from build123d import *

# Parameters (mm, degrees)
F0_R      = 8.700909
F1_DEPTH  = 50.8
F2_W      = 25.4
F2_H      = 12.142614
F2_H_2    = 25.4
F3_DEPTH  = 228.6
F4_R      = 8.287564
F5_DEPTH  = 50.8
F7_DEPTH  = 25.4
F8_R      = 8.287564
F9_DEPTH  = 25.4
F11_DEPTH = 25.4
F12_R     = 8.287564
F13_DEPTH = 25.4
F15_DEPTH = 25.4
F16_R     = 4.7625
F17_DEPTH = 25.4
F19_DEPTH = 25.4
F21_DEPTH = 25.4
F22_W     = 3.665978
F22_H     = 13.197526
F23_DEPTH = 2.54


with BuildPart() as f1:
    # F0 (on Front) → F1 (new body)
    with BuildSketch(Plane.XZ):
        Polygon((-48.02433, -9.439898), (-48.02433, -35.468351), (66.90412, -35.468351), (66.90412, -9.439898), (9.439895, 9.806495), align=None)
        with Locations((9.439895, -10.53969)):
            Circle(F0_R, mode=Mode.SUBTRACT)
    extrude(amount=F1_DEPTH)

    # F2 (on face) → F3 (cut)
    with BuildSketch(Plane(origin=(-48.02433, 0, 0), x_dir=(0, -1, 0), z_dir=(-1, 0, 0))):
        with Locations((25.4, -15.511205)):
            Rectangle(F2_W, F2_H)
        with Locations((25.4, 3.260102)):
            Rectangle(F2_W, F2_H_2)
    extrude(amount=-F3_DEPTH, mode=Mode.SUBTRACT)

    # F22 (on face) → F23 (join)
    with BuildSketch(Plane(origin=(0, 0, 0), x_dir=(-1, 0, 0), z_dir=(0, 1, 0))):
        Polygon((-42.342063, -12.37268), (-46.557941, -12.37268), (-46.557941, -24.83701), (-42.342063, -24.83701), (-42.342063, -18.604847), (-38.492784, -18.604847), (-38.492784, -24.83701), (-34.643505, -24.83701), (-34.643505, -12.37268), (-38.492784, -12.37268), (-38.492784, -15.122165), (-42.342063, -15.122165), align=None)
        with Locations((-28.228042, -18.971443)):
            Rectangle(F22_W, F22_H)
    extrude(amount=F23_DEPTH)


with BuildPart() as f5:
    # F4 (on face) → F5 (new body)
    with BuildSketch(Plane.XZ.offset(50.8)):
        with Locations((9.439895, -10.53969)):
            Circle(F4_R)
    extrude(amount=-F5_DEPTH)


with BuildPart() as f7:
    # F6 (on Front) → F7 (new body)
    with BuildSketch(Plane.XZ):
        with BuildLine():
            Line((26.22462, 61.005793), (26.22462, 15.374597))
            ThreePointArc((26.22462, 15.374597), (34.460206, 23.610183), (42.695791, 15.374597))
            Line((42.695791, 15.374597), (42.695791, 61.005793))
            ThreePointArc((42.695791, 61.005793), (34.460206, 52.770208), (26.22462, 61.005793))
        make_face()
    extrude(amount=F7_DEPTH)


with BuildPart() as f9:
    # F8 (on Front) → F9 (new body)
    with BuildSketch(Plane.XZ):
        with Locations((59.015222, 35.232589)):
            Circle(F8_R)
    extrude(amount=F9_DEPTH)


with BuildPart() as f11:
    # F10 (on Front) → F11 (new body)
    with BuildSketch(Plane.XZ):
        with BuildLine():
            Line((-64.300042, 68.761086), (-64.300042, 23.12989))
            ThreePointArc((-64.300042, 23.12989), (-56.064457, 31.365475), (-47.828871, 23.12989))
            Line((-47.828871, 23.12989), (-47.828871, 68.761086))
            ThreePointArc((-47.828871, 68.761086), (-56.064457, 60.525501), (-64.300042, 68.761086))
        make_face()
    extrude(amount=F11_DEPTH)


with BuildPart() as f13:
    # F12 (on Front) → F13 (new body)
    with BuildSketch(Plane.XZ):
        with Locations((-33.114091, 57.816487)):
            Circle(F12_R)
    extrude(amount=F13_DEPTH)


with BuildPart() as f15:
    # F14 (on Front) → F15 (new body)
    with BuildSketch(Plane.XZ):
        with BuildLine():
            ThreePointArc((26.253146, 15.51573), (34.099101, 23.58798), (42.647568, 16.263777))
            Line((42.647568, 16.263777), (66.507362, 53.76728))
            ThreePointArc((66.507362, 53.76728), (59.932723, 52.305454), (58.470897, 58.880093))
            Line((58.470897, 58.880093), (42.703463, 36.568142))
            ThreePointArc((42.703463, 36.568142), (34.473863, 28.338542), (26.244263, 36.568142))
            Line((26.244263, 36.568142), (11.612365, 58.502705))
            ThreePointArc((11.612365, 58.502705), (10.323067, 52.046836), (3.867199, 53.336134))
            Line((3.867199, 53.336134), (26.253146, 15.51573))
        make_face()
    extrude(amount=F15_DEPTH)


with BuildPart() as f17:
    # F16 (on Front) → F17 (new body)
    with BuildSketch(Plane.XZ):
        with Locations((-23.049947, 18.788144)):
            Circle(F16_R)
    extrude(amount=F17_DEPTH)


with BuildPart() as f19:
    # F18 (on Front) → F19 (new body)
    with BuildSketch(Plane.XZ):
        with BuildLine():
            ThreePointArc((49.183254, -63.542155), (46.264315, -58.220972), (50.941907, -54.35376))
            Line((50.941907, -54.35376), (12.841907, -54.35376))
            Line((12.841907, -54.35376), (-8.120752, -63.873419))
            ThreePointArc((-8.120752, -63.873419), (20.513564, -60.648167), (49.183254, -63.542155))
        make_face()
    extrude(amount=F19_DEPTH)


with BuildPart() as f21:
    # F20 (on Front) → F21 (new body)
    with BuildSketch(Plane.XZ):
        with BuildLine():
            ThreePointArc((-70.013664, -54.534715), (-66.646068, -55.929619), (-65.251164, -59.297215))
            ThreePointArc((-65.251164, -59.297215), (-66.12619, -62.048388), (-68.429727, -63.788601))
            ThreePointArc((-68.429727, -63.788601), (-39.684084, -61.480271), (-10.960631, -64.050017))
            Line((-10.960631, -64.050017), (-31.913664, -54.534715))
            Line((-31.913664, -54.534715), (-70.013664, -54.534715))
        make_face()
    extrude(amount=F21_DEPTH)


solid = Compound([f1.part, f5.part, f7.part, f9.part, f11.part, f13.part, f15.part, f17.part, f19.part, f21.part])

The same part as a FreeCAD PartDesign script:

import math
import FreeCAD as App
import Part
import Sketcher

V = App.Vector
Q = App.Units.Quantity

doc = App.newDocument("Part")
body = doc.addObject("PartDesign::Body", "Body")

# Sketch on XZ plane
sketch1 = body.newObject("Sketcher::SketchObject", "Sketch")
sketch1.AttachmentSupport = (doc.getObject("XZ_Plane"), [""])
sketch1.MapMode = "FlatFace"
sketch1.addGeometry([
    Part.LineSegment(V(-48, -9, 0), V(-48, -35, 0)),  # 0
    Part.LineSegment(V(-48, -35, 0), V(67, -35, 0)),  # 1
    Part.LineSegment(V(67, -35, 0), V(67, -9, 0)),  # 2
    Part.LineSegment(V(67, -9, 0), V(9, 10, 0)),  # 3
    Part.LineSegment(V(9, 10, 0), V(-48, -9, 0)),  # 4
    Part.Circle(V(9, -11, 0), V(0, 0, 1), 9),  # 5
], False)
sketch1.addConstraint([
    Sketcher.Constraint("Coincident", 0, 2, 1, 1),
    Sketcher.Constraint("Coincident", 1, 2, 2, 1),
    Sketcher.Constraint("Coincident", 2, 2, 3, 1),
    Sketcher.Constraint("Coincident", 3, 2, 4, 1),
    Sketcher.Constraint("Coincident", 4, 2, 0, 1),
    Sketcher.Constraint("Vertical", 0),
    Sketcher.Constraint("Horizontal", 1),
    Sketcher.Constraint("Vertical", 2),
    Sketcher.Constraint("Horizontal", 2, 2, 4, 2),
    Sketcher.Constraint("Vertical", 5, 3, 3, 2),
    Sketcher.Constraint("Equal", 3, 4),
    Sketcher.Constraint("Diameter", 5, 17.401818),
    Sketcher.Constraint("DistanceX", 1, 1, 1, 2, 114.92845),
    Sketcher.Constraint("DistanceY", 0, 2, 0, 1, 26.028453),
    Sketcher.Constraint("DistanceY", 5, 3, -1, 1, 10.53969),
    Sketcher.Constraint("DistanceX", 0, 2, -1, 1, 48.02433),
    Sketcher.Constraint("DistanceY", 0, 2, -1, 1, 35.468351),
    Sketcher.Constraint("Distance", 3, 60.601657),
])
pad1 = body.newObject("PartDesign::Pad", "Pad")
pad1.Profile = sketch1
pad1.Length = Q("2 in")

# Sketch on YZ plane
sketch2 = body.newObject("Sketcher::SketchObject", "Sketch001")
sketch2.AttachmentSupport = (doc.getObject("YZ_Plane"), [""])
sketch2.MapMode = "FlatFace"
sketch2.AttachmentOffset = App.Placement(V(0, 0, -48.02433), App.Rotation())
sketch2.addGeometry([
    Part.LineSegment(V(-13, -22, 0), V(-38, -22, 0)),
    Part.LineSegment(V(-38, -22, 0), V(-38, 16, 0)),
    Part.LineSegment(V(-38, 16, 0), V(-13, 16, 0)),
    Part.LineSegment(V(-13, 16, 0), V(-13, -22, 0)),
], False)
sketch2.addConstraint([
    Sketcher.Constraint("Coincident", 0, 2, 1, 1),
    Sketcher.Constraint("Coincident", 1, 2, 2, 1),
    Sketcher.Constraint("Coincident", 2, 2, 3, 1),
    Sketcher.Constraint("Coincident", 3, 2, 0, 1),
    Sketcher.Constraint("Horizontal", 0),
    Sketcher.Constraint("Vertical", 1),
    Sketcher.Constraint("Horizontal", 2),
    Sketcher.Constraint("Vertical", 3),
    Sketcher.Constraint("DistanceX", 0, 2, 0, 1, Q("1 in")),
    Sketcher.Constraint("DistanceX", 0, 2, -1, 1, Q("1.5 in")),
    Sketcher.Constraint("DistanceY", -1, 1, 1, 2, 15.960102),
    Sketcher.Constraint("DistanceY", 1, 1, 1, 2, 37.542614),
])
pocket1 = body.newObject("PartDesign::Pocket", "Pocket")
pocket1.Profile = sketch2
pocket1.Length = Q("9 in")
pocket1.Reversed = True

# Sketch on XZ plane
sketch3 = body.newObject("Sketcher::SketchObject", "Sketch002")
sketch3.AttachmentSupport = (doc.getObject("XZ_Plane"), [""])
sketch3.MapMode = "FlatFace"
sketch3.addGeometry([
    Part.LineSegment(V(42.3, -12.4, 0), V(46.6, -12.4, 0)),  # 0
    Part.LineSegment(V(46.6, -12.4, 0), V(46.6, -24.8, 0)),  # 1
    Part.LineSegment(V(46.6, -24.8, 0), V(42.3, -24.8, 0)),  # 2
    Part.LineSegment(V(42.3, -24.8, 0), V(42.3, -18.6, 0)),  # 3
    Part.LineSegment(V(42.3, -18.6, 0), V(38.5, -18.6, 0)),  # 4
    Part.LineSegment(V(38.5, -18.6, 0), V(38.5, -24.8, 0)),  # 5
    Part.LineSegment(V(38.5, -24.8, 0), V(34.6, -24.8, 0)),  # 6
    Part.LineSegment(V(34.6, -24.8, 0), V(34.6, -12.4, 0)),  # 7
    Part.LineSegment(V(34.6, -12.4, 0), V(38.5, -12.4, 0)),  # 8
    Part.LineSegment(V(38.5, -12.4, 0), V(38.5, -15.1, 0)),  # 9
    Part.LineSegment(V(38.5, -15.1, 0), V(42.3, -15.1, 0)),  # 10
    Part.LineSegment(V(42.3, -15.1, 0), V(42.3, -12.4, 0)),  # 11
    Part.LineSegment(V(30.1, -12.4, 0), V(30.1, -25.6, 0)),  # 12
    Part.LineSegment(V(30.1, -25.6, 0), V(26.4, -25.6, 0)),  # 13
    Part.LineSegment(V(26.4, -25.6, 0), V(26.4, -12.4, 0)),  # 14
    Part.LineSegment(V(26.4, -12.4, 0), V(30.1, -12.4, 0)),  # 15
], False)
sketch3.addConstraint([
    Sketcher.Constraint("Coincident", 0, 2, 1, 1),
    Sketcher.Constraint("Coincident", 1, 2, 2, 1),
    Sketcher.Constraint("Coincident", 2, 2, 3, 1),
    Sketcher.Constraint("Coincident", 3, 2, 4, 1),
    Sketcher.Constraint("Coincident", 4, 2, 5, 1),
    Sketcher.Constraint("Coincident", 5, 2, 6, 1),
    Sketcher.Constraint("Coincident", 6, 2, 7, 1),
    Sketcher.Constraint("Coincident", 7, 2, 8, 1),
    Sketcher.Constraint("Coincident", 8, 2, 9, 1),
    Sketcher.Constraint("Coincident", 9, 2, 10, 1),
    Sketcher.Constraint("Coincident", 10, 2, 11, 1),
    Sketcher.Constraint("Coincident", 11, 2, 0, 1),
    Sketcher.Constraint("Coincident", 12, 2, 13, 1),
    Sketcher.Constraint("Coincident", 13, 2, 14, 1),
    Sketcher.Constraint("Coincident", 14, 2, 15, 1),
    Sketcher.Constraint("Coincident", 15, 2, 12, 1),
    Sketcher.Constraint("Horizontal", 0),
    Sketcher.Constraint("Vertical", 1),
    Sketcher.Constraint("Horizontal", 2),
    Sketcher.Constraint("Vertical", 3),
    Sketcher.Constraint("Horizontal", 4),
    Sketcher.Constraint("Vertical", 5),
    Sketcher.Constraint("Horizontal", 6),
    Sketcher.Constraint("Vertical", 7),
    Sketcher.Constraint("Horizontal", 8),
    Sketcher.Constraint("Vertical", 9),
    Sketcher.Constraint("Horizontal", 10),
    Sketcher.Constraint("Vertical", 11),
    Sketcher.Constraint("Vertical", 12),
    Sketcher.Constraint("Horizontal", 13),
    Sketcher.Constraint("Vertical", 14),
    Sketcher.Constraint("Horizontal", 15),
    Sketcher.Constraint("Horizontal", 2, 2, 5, 2),
    Sketcher.Constraint("Horizontal", 0, 2, 7, 2),
    Sketcher.Constraint("Horizontal", 11, 2, 14, 2),
    Sketcher.Constraint("Vertical", 5, 2, 8, 2),
    Sketcher.Constraint("Vertical", 3, 2, 10, 2),
    Sketcher.Constraint("Equal", 4, 6),
    Sketcher.Constraint("DistanceX", 4, 2, 4, 1, 3.849279),
    Sketcher.Constraint("DistanceY", 1, 2, 1, 1, 12.46433),
    Sketcher.Constraint("DistanceX", 0, 1, 0, 2, 4.215878),
    Sketcher.Constraint("DistanceX", 13, 2, 13, 1, 3.665978),
    Sketcher.Constraint("DistanceY", 3, 1, 3, 2, 6.232163),
    Sketcher.Constraint("DistanceY", 9, 2, 9, 1, 2.749485),
    Sketcher.Constraint("DistanceY", 12, 2, 12, 1, 13.197526),
    Sketcher.Constraint("DistanceX", -1, 1, 0, 2, 46.557941),
    Sketcher.Constraint("DistanceY", 0, 2, -1, 1, 12.37268),
    Sketcher.Constraint("DistanceX", -1, 1, 12, 2, 30.061031),
])
pad2 = body.newObject("PartDesign::Pad", "Pad001")
pad2.Profile = sketch3
pad2.Length = Q("0.1 in")
pad2.Reversed = True
body2 = doc.addObject("PartDesign::Body", "Body001")

# Sketch on XZ plane
sketch4 = body2.newObject("Sketcher::SketchObject", "Sketch003")
sketch4.AttachmentSupport = (doc.getObject("XZ_Plane001"), [""])
sketch4.MapMode = "FlatFace"
sketch4.AttachmentOffset = App.Placement(V(0, 0, 2 * 25.4), App.Rotation())
sketch4.addGeometry(Part.Circle(V(9, -11, 0), V(0, 0, 1), 8), False)
sketch4.addConstraint([
    Sketcher.Constraint("Diameter", 0, 16.575128),
    Sketcher.Constraint("DistanceY", 0, 3, -1, 1, 10.53969),
    Sketcher.Constraint("DistanceX", -1, 1, 0, 3, 9.439895),
])
pad3 = body2.newObject("PartDesign::Pad", "Pad002")
pad3.Profile = sketch4
pad3.Length = Q("2 in")
pad3.Reversed = True
body3 = doc.addObject("PartDesign::Body", "Body002")

# Sketch on XZ plane
sketch5 = body3.newObject("Sketcher::SketchObject", "Sketch004")
sketch5.AttachmentSupport = (doc.getObject("XZ_Plane002"), [""])
sketch5.MapMode = "FlatFace"
sketch5.addGeometry([
    Part.LineSegment(V(26, 61, 0), V(26, 15, 0)),
    Part.ArcOfCircle(Part.Circle(V(34, 15, 0), V(0, 0, 1), 8), math.radians(0), math.radians(180)),
    Part.LineSegment(V(43, 15, 0), V(43, 61, 0)),
    Part.ArcOfCircle(Part.Circle(V(34, 61, 0), V(0, 0, 1), 8), math.radians(-180), math.radians(0)),
], False)
sketch5.addConstraint([
    Sketcher.Constraint("Tangent", 0, 2, 1, 2),
    Sketcher.Constraint("Tangent", 1, 1, 2, 1),
    Sketcher.Constraint("Tangent", 2, 2, 3, 2),
    Sketcher.Constraint("Tangent", 3, 1, 0, 1),
    Sketcher.Constraint("Vertical", 0),
    Sketcher.Constraint("Vertical", 2),
    Sketcher.Constraint("Radius", 1, 8.235585),
    Sketcher.Constraint("DistanceY", 0, 2, 0, 1, 45.631196),
    Sketcher.Constraint("DistanceX", -1, 1, 0, 2, 26.22462),
    Sketcher.Constraint("DistanceY", -1, 1, 1, 3, 15.374598),
])
pad4 = body3.newObject("PartDesign::Pad", "Pad003")
pad4.Profile = sketch5
pad4.Length = Q("1 in")
body4 = doc.addObject("PartDesign::Body", "Body003")

# Sketch on XZ plane
sketch6 = body4.newObject("Sketcher::SketchObject", "Sketch005")
sketch6.AttachmentSupport = (doc.getObject("XZ_Plane003"), [""])
sketch6.MapMode = "FlatFace"
sketch6.addGeometry(Part.Circle(V(59, 35, 0), V(0, 0, 1), 8), False)
sketch6.addConstraint([
    Sketcher.Constraint("Diameter", 0, 16.575128),
    Sketcher.Constraint("DistanceY", -1, 1, 0, 3, 35.232589),
    Sketcher.Constraint("DistanceX", -1, 1, 0, 3, 59.015222),
])
pad5 = body4.newObject("PartDesign::Pad", "Pad004")
pad5.Profile = sketch6
pad5.Length = Q("1 in")
body5 = doc.addObject("PartDesign::Body", "Body004")

# Sketch on XZ plane
sketch7 = body5.newObject("Sketcher::SketchObject", "Sketch006")
sketch7.AttachmentSupport = (doc.getObject("XZ_Plane004"), [""])
sketch7.MapMode = "FlatFace"
sketch7.addGeometry([
    Part.LineSegment(V(-64, 69, 0), V(-64, 23, 0)),
    Part.ArcOfCircle(Part.Circle(V(-56, 23, 0), V(0, 0, 1), 8), math.radians(0), math.radians(180)),
    Part.LineSegment(V(-48, 23, 0), V(-48, 69, 0)),
    Part.ArcOfCircle(Part.Circle(V(-56, 69, 0), V(0, 0, 1), 8), math.radians(-180), math.radians(0)),
], False)
sketch7.addConstraint([
    Sketcher.Constraint("Tangent", 0, 2, 1, 2),
    Sketcher.Constraint("Tangent", 1, 1, 2, 1),
    Sketcher.Constraint("Tangent", 2, 2, 3, 2),
    Sketcher.Constraint("Tangent", 3, 1, 0, 1),
    Sketcher.Constraint("Vertical", 0),
    Sketcher.Constraint("Vertical", 2),
    Sketcher.Constraint("Radius", 1, 8.235585),
    Sketcher.Constraint("DistanceY", 0, 2, 0, 1, 45.631196),
    Sketcher.Constraint("DistanceY", -1, 1, 1, 3, 23.12989),
    Sketcher.Constraint("DistanceX", 1, 1, -1, 1, 47.828871),
])
pad6 = body5.newObject("PartDesign::Pad", "Pad005")
pad6.Profile = sketch7
pad6.Length = Q("1 in")
body6 = doc.addObject("PartDesign::Body", "Body005")

# Sketch on XZ plane
sketch8 = body6.newObject("Sketcher::SketchObject", "Sketch007")
sketch8.AttachmentSupport = (doc.getObject("XZ_Plane005"), [""])
sketch8.MapMode = "FlatFace"
sketch8.addGeometry(Part.Circle(V(-33, 58, 0), V(0, 0, 1), 8), False)
sketch8.addConstraint([
    Sketcher.Constraint("Diameter", 0, 16.575128),
    Sketcher.Constraint("DistanceX", 0, 3, -1, 1, 33.114091),
    Sketcher.Constraint("DistanceY", -1, 1, 0, 3, 57.816487),
])
pad7 = body6.newObject("PartDesign::Pad", "Pad006")
pad7.Profile = sketch8
pad7.Length = Q("1 in")
body7 = doc.addObject("PartDesign::Body", "Body006")

# Sketch on XZ plane
sketch9 = body7.newObject("Sketcher::SketchObject", "Sketch008")
sketch9.AttachmentSupport = (doc.getObject("XZ_Plane006"), [""])
sketch9.MapMode = "FlatFace"
sketch9.addGeometry([
    Part.ArcOfCircle(Part.Circle(V(34.473863, 15.374597, 0), V(0, 0, 1), 8.221928), math.radians(6.208529), math.radians(179.016447)),  # 0
    Part.LineSegment(V(42.647568, 16.263777, 0), V(66.507362, 53.76728, 0)),  # 1
    Part.ArcOfCircle(Part.Circle(V(62.489129, 56.323687, 0), V(0, 0, 1), 4.7625), math.radians(147.535411), math.radians(327.535411)),  # 2
    Part.LineSegment(V(58.470897, 58.880093, 0), V(42.703463, 36.568142, 0)),  # 3
    Part.ArcOfCircle(Part.Circle(V(34.473863, 36.568142, 0), V(0, 0, 1), 8.2296), math.radians(180), math.radians(360)),  # 4
    Part.LineSegment(V(26.244263, 36.568142, 0), V(11.612365, 58.502705, 0)),  # 5
    Part.ArcOfCircle(Part.Circle(V(7.739782, 55.919419, 0), V(0, 0, 1), 4.655133), math.radians(-146.293922), math.radians(33.706081)),  # 6
    Part.LineSegment(V(3.867199, 53.336134, 0), V(26.253146, 15.51573, 0)),  # 7
], False)
sketch9.addConstraint([
    Sketcher.Constraint("Coincident", 0, 1, 1, 1),
    Sketcher.Constraint("Coincident", 1, 2, 2, 2),
    Sketcher.Constraint("Coincident", 2, 1, 3, 1),
    Sketcher.Constraint("Coincident", 3, 2, 4, 2),
    Sketcher.Constraint("Coincident", 4, 1, 5, 1),
    Sketcher.Constraint("Coincident", 5, 2, 6, 2),
    Sketcher.Constraint("Coincident", 6, 1, 7, 1),
    Sketcher.Constraint("Coincident", 7, 2, 0, 2),
    Sketcher.Constraint("Radius", 2, Q("0.1875 in")),
    Sketcher.Constraint("Radius", 4, Q("0.324 in")),
    Sketcher.Constraint("Distance", 1, Q("1.75 in")),
    Sketcher.Constraint("Radius", 0, 8.221928),
    Sketcher.Constraint("DistanceX", 0, 3, 3, 2, Q("0.324 in")),
    Sketcher.Constraint("DistanceX", -1, 1, 1, 2, Q("2.6184001 in")),
    Sketcher.Constraint("Radius", 6, 4.655133),
    Sketcher.Constraint("DistanceX", -1, 1, 6, 1, 3.867199),
    Sketcher.Constraint("DistanceX", 4, 3, 1, 2, 32.033499),
    Sketcher.Constraint("DistanceX", 5, 2, 4, 1, 14.631898),
    Sketcher.Constraint("Distance", 7, 43.948988),
    Sketcher.Constraint("DistanceX", -1, 1, 2, 3, 62.489129),
    Sketcher.Constraint("DistanceY", -1, 1, 6, 3, 55.919419),
    Sketcher.Constraint("DistanceY", -1, 1, 1, 2, 53.76728),
    Sketcher.Constraint("DistanceY", -1, 1, 7, 2, 15.51573),
    Sketcher.Constraint("DistanceY", 0, 3, 2, 3, 40.949089),
    Sketcher.Constraint("DistanceY", 4, 3, 2, 1, 22.311951),
    Sketcher.Constraint("DistanceX", 0, 1, 2, 1, 15.823329),
    Sketcher.Constraint("DistanceY", 3, 2, 2, 1, 22.311951),
    Sketcher.Constraint("DistanceY", 4, 1, 6, 1, 16.767992),
])
pad8 = body7.newObject("PartDesign::Pad", "Pad007")
pad8.Profile = sketch9
pad8.Length = Q("1 in")
body8 = doc.addObject("PartDesign::Body", "Body007")

# Sketch on XZ plane
sketch10 = body8.newObject("Sketcher::SketchObject", "Sketch009")
sketch10.AttachmentSupport = (doc.getObject("XZ_Plane007"), [""])
sketch10.MapMode = "FlatFace"
sketch10.addGeometry(Part.Circle(V(-23, 18.8, 0), V(0, 0, 1), 4.8), False)
sketch10.addConstraint([
    Sketcher.Constraint("Diameter", 0, Q("0.375 in")),
    Sketcher.Constraint("DistanceX", 0, 3, -1, 1, 23.049947),
    Sketcher.Constraint("DistanceY", -1, 1, 0, 3, 18.788144),
])
pad9 = body8.newObject("PartDesign::Pad", "Pad008")
pad9.Profile = sketch10
pad9.Length = Q("1 in")
body9 = doc.addObject("PartDesign::Body", "Body008")

# Sketch on XZ plane
sketch11 = body9.newObject("Sketcher::SketchObject", "Sketch010")
sketch11.AttachmentSupport = (doc.getObject("XZ_Plane008"), [""])
sketch11.MapMode = "FlatFace"
sketch11.addGeometry([
    Part.ArcOfCircle(Part.Circle(V(50.9, -59.1, 0), V(0, 0, 1), 4.8), math.radians(90), math.radians(248)),
    Part.LineSegment(V(50.9, -54.4, 0), V(12.8, -54.4, 0)),
    Part.LineSegment(V(12.8, -54.4, 0), V(-8.1, -63.9, 0)),
    Part.ArcOfCircle(Part.Circle(V(21.3, -196.3, 0), V(0, 0, 1), 135.7), math.radians(78), math.radians(103)),
], False)
sketch11.addConstraint([
    Sketcher.Constraint("Tangent", 0, 1, 1, 1),
    Sketcher.Constraint("Coincident", 1, 2, 2, 1),
    Sketcher.Constraint("Coincident", 2, 2, 3, 2),
    Sketcher.Constraint("Coincident", 3, 1, 0, 2),
    Sketcher.Constraint("Horizontal", 1),
    Sketcher.Constraint("DistanceX", 1, 2, 1, 1, Q("1.5 in")),
    Sketcher.Constraint("Radius", 0, Q("0.1875 in")),
    Sketcher.Constraint("Radius", 3, 135.688815),
    Sketcher.Constraint("DistanceY", 0, 3, -1, 1, 59.11626),
    Sketcher.Constraint("DistanceY", 2, 2, -1, 1, 63.873419),
    Sketcher.Constraint("DistanceX", 2, 2, 1, 2, 20.962659),
    Sketcher.Constraint("DistanceX", 3, 3, 3, 1, 27.885311),
    Sketcher.Constraint("DistanceX", -1, 1, 0, 3, 50.941907),
])
pad10 = body9.newObject("PartDesign::Pad", "Pad009")
pad10.Profile = sketch11
pad10.Length = Q("1 in")
body10 = doc.addObject("PartDesign::Body", "Body009")

# Sketch on XZ plane
sketch12 = body10.newObject("Sketcher::SketchObject", "Sketch011")
sketch12.AttachmentSupport = (doc.getObject("XZ_Plane009"), [""])
sketch12.MapMode = "FlatFace"
sketch12.addGeometry([
    Part.ArcOfCircle(Part.Circle(V(-70, -59.3, 0), V(0, 0, 1), 4.8), math.radians(0), math.radians(90)),  # 0
    Part.ArcOfCircle(Part.Circle(V(-70, -59.3, 0), V(0, 0, 1), 4.8), math.radians(-71), math.radians(0)),  # 1
    Part.ArcOfCircle(Part.Circle(V(-40.5, -232, 0), V(0, 0, 1), 170.5), math.radians(80.04), math.radians(99.44)),  # 2
    Part.LineSegment(V(-11, -64.1, 0), V(-31.9, -54.5, 0)),  # 3
    Part.LineSegment(V(-31.9, -54.5, 0), V(-70, -54.5, 0)),  # 4
], False)
sketch12.addConstraint([
    Sketcher.Constraint("Tangent", 0, 1, 1, 2),
    Sketcher.Constraint("Coincident", 1, 1, 2, 2),
    Sketcher.Constraint("Coincident", 2, 1, 3, 1),
    Sketcher.Constraint("Coincident", 3, 2, 4, 1),
    Sketcher.Constraint("Tangent", 4, 2, 0, 2),
    Sketcher.Constraint("Horizontal", 4),
    Sketcher.Constraint("Equal", 0, 1),
    Sketcher.Constraint("Horizontal", 1, 3, 0, 1),
    Sketcher.Constraint("DistanceX", 4, 2, 4, 1, Q("1.5 in")),
    Sketcher.Constraint("Radius", 0, Q("0.1875 in")),
    Sketcher.Constraint("Distance", 3, Q("0.906 in")),
    Sketcher.Constraint("Radius", 2, 170.483559),
    Sketcher.Constraint("DistanceY", 1, 1, -1, 1, 63.788601),
    Sketcher.Constraint("DistanceY", 2, 1, 0, 1, 4.752802),
    Sketcher.Constraint("DistanceX", 2, 1, -1, 1, 10.960631),
    Sketcher.Constraint("DistanceX", 1, 3, 2, 3, 29.55409),
])
pad11 = body10.newObject("PartDesign::Pad", "Pad010")
pad11.Profile = sketch12
pad11.Length = Q("1 in")

doc.recompute()
